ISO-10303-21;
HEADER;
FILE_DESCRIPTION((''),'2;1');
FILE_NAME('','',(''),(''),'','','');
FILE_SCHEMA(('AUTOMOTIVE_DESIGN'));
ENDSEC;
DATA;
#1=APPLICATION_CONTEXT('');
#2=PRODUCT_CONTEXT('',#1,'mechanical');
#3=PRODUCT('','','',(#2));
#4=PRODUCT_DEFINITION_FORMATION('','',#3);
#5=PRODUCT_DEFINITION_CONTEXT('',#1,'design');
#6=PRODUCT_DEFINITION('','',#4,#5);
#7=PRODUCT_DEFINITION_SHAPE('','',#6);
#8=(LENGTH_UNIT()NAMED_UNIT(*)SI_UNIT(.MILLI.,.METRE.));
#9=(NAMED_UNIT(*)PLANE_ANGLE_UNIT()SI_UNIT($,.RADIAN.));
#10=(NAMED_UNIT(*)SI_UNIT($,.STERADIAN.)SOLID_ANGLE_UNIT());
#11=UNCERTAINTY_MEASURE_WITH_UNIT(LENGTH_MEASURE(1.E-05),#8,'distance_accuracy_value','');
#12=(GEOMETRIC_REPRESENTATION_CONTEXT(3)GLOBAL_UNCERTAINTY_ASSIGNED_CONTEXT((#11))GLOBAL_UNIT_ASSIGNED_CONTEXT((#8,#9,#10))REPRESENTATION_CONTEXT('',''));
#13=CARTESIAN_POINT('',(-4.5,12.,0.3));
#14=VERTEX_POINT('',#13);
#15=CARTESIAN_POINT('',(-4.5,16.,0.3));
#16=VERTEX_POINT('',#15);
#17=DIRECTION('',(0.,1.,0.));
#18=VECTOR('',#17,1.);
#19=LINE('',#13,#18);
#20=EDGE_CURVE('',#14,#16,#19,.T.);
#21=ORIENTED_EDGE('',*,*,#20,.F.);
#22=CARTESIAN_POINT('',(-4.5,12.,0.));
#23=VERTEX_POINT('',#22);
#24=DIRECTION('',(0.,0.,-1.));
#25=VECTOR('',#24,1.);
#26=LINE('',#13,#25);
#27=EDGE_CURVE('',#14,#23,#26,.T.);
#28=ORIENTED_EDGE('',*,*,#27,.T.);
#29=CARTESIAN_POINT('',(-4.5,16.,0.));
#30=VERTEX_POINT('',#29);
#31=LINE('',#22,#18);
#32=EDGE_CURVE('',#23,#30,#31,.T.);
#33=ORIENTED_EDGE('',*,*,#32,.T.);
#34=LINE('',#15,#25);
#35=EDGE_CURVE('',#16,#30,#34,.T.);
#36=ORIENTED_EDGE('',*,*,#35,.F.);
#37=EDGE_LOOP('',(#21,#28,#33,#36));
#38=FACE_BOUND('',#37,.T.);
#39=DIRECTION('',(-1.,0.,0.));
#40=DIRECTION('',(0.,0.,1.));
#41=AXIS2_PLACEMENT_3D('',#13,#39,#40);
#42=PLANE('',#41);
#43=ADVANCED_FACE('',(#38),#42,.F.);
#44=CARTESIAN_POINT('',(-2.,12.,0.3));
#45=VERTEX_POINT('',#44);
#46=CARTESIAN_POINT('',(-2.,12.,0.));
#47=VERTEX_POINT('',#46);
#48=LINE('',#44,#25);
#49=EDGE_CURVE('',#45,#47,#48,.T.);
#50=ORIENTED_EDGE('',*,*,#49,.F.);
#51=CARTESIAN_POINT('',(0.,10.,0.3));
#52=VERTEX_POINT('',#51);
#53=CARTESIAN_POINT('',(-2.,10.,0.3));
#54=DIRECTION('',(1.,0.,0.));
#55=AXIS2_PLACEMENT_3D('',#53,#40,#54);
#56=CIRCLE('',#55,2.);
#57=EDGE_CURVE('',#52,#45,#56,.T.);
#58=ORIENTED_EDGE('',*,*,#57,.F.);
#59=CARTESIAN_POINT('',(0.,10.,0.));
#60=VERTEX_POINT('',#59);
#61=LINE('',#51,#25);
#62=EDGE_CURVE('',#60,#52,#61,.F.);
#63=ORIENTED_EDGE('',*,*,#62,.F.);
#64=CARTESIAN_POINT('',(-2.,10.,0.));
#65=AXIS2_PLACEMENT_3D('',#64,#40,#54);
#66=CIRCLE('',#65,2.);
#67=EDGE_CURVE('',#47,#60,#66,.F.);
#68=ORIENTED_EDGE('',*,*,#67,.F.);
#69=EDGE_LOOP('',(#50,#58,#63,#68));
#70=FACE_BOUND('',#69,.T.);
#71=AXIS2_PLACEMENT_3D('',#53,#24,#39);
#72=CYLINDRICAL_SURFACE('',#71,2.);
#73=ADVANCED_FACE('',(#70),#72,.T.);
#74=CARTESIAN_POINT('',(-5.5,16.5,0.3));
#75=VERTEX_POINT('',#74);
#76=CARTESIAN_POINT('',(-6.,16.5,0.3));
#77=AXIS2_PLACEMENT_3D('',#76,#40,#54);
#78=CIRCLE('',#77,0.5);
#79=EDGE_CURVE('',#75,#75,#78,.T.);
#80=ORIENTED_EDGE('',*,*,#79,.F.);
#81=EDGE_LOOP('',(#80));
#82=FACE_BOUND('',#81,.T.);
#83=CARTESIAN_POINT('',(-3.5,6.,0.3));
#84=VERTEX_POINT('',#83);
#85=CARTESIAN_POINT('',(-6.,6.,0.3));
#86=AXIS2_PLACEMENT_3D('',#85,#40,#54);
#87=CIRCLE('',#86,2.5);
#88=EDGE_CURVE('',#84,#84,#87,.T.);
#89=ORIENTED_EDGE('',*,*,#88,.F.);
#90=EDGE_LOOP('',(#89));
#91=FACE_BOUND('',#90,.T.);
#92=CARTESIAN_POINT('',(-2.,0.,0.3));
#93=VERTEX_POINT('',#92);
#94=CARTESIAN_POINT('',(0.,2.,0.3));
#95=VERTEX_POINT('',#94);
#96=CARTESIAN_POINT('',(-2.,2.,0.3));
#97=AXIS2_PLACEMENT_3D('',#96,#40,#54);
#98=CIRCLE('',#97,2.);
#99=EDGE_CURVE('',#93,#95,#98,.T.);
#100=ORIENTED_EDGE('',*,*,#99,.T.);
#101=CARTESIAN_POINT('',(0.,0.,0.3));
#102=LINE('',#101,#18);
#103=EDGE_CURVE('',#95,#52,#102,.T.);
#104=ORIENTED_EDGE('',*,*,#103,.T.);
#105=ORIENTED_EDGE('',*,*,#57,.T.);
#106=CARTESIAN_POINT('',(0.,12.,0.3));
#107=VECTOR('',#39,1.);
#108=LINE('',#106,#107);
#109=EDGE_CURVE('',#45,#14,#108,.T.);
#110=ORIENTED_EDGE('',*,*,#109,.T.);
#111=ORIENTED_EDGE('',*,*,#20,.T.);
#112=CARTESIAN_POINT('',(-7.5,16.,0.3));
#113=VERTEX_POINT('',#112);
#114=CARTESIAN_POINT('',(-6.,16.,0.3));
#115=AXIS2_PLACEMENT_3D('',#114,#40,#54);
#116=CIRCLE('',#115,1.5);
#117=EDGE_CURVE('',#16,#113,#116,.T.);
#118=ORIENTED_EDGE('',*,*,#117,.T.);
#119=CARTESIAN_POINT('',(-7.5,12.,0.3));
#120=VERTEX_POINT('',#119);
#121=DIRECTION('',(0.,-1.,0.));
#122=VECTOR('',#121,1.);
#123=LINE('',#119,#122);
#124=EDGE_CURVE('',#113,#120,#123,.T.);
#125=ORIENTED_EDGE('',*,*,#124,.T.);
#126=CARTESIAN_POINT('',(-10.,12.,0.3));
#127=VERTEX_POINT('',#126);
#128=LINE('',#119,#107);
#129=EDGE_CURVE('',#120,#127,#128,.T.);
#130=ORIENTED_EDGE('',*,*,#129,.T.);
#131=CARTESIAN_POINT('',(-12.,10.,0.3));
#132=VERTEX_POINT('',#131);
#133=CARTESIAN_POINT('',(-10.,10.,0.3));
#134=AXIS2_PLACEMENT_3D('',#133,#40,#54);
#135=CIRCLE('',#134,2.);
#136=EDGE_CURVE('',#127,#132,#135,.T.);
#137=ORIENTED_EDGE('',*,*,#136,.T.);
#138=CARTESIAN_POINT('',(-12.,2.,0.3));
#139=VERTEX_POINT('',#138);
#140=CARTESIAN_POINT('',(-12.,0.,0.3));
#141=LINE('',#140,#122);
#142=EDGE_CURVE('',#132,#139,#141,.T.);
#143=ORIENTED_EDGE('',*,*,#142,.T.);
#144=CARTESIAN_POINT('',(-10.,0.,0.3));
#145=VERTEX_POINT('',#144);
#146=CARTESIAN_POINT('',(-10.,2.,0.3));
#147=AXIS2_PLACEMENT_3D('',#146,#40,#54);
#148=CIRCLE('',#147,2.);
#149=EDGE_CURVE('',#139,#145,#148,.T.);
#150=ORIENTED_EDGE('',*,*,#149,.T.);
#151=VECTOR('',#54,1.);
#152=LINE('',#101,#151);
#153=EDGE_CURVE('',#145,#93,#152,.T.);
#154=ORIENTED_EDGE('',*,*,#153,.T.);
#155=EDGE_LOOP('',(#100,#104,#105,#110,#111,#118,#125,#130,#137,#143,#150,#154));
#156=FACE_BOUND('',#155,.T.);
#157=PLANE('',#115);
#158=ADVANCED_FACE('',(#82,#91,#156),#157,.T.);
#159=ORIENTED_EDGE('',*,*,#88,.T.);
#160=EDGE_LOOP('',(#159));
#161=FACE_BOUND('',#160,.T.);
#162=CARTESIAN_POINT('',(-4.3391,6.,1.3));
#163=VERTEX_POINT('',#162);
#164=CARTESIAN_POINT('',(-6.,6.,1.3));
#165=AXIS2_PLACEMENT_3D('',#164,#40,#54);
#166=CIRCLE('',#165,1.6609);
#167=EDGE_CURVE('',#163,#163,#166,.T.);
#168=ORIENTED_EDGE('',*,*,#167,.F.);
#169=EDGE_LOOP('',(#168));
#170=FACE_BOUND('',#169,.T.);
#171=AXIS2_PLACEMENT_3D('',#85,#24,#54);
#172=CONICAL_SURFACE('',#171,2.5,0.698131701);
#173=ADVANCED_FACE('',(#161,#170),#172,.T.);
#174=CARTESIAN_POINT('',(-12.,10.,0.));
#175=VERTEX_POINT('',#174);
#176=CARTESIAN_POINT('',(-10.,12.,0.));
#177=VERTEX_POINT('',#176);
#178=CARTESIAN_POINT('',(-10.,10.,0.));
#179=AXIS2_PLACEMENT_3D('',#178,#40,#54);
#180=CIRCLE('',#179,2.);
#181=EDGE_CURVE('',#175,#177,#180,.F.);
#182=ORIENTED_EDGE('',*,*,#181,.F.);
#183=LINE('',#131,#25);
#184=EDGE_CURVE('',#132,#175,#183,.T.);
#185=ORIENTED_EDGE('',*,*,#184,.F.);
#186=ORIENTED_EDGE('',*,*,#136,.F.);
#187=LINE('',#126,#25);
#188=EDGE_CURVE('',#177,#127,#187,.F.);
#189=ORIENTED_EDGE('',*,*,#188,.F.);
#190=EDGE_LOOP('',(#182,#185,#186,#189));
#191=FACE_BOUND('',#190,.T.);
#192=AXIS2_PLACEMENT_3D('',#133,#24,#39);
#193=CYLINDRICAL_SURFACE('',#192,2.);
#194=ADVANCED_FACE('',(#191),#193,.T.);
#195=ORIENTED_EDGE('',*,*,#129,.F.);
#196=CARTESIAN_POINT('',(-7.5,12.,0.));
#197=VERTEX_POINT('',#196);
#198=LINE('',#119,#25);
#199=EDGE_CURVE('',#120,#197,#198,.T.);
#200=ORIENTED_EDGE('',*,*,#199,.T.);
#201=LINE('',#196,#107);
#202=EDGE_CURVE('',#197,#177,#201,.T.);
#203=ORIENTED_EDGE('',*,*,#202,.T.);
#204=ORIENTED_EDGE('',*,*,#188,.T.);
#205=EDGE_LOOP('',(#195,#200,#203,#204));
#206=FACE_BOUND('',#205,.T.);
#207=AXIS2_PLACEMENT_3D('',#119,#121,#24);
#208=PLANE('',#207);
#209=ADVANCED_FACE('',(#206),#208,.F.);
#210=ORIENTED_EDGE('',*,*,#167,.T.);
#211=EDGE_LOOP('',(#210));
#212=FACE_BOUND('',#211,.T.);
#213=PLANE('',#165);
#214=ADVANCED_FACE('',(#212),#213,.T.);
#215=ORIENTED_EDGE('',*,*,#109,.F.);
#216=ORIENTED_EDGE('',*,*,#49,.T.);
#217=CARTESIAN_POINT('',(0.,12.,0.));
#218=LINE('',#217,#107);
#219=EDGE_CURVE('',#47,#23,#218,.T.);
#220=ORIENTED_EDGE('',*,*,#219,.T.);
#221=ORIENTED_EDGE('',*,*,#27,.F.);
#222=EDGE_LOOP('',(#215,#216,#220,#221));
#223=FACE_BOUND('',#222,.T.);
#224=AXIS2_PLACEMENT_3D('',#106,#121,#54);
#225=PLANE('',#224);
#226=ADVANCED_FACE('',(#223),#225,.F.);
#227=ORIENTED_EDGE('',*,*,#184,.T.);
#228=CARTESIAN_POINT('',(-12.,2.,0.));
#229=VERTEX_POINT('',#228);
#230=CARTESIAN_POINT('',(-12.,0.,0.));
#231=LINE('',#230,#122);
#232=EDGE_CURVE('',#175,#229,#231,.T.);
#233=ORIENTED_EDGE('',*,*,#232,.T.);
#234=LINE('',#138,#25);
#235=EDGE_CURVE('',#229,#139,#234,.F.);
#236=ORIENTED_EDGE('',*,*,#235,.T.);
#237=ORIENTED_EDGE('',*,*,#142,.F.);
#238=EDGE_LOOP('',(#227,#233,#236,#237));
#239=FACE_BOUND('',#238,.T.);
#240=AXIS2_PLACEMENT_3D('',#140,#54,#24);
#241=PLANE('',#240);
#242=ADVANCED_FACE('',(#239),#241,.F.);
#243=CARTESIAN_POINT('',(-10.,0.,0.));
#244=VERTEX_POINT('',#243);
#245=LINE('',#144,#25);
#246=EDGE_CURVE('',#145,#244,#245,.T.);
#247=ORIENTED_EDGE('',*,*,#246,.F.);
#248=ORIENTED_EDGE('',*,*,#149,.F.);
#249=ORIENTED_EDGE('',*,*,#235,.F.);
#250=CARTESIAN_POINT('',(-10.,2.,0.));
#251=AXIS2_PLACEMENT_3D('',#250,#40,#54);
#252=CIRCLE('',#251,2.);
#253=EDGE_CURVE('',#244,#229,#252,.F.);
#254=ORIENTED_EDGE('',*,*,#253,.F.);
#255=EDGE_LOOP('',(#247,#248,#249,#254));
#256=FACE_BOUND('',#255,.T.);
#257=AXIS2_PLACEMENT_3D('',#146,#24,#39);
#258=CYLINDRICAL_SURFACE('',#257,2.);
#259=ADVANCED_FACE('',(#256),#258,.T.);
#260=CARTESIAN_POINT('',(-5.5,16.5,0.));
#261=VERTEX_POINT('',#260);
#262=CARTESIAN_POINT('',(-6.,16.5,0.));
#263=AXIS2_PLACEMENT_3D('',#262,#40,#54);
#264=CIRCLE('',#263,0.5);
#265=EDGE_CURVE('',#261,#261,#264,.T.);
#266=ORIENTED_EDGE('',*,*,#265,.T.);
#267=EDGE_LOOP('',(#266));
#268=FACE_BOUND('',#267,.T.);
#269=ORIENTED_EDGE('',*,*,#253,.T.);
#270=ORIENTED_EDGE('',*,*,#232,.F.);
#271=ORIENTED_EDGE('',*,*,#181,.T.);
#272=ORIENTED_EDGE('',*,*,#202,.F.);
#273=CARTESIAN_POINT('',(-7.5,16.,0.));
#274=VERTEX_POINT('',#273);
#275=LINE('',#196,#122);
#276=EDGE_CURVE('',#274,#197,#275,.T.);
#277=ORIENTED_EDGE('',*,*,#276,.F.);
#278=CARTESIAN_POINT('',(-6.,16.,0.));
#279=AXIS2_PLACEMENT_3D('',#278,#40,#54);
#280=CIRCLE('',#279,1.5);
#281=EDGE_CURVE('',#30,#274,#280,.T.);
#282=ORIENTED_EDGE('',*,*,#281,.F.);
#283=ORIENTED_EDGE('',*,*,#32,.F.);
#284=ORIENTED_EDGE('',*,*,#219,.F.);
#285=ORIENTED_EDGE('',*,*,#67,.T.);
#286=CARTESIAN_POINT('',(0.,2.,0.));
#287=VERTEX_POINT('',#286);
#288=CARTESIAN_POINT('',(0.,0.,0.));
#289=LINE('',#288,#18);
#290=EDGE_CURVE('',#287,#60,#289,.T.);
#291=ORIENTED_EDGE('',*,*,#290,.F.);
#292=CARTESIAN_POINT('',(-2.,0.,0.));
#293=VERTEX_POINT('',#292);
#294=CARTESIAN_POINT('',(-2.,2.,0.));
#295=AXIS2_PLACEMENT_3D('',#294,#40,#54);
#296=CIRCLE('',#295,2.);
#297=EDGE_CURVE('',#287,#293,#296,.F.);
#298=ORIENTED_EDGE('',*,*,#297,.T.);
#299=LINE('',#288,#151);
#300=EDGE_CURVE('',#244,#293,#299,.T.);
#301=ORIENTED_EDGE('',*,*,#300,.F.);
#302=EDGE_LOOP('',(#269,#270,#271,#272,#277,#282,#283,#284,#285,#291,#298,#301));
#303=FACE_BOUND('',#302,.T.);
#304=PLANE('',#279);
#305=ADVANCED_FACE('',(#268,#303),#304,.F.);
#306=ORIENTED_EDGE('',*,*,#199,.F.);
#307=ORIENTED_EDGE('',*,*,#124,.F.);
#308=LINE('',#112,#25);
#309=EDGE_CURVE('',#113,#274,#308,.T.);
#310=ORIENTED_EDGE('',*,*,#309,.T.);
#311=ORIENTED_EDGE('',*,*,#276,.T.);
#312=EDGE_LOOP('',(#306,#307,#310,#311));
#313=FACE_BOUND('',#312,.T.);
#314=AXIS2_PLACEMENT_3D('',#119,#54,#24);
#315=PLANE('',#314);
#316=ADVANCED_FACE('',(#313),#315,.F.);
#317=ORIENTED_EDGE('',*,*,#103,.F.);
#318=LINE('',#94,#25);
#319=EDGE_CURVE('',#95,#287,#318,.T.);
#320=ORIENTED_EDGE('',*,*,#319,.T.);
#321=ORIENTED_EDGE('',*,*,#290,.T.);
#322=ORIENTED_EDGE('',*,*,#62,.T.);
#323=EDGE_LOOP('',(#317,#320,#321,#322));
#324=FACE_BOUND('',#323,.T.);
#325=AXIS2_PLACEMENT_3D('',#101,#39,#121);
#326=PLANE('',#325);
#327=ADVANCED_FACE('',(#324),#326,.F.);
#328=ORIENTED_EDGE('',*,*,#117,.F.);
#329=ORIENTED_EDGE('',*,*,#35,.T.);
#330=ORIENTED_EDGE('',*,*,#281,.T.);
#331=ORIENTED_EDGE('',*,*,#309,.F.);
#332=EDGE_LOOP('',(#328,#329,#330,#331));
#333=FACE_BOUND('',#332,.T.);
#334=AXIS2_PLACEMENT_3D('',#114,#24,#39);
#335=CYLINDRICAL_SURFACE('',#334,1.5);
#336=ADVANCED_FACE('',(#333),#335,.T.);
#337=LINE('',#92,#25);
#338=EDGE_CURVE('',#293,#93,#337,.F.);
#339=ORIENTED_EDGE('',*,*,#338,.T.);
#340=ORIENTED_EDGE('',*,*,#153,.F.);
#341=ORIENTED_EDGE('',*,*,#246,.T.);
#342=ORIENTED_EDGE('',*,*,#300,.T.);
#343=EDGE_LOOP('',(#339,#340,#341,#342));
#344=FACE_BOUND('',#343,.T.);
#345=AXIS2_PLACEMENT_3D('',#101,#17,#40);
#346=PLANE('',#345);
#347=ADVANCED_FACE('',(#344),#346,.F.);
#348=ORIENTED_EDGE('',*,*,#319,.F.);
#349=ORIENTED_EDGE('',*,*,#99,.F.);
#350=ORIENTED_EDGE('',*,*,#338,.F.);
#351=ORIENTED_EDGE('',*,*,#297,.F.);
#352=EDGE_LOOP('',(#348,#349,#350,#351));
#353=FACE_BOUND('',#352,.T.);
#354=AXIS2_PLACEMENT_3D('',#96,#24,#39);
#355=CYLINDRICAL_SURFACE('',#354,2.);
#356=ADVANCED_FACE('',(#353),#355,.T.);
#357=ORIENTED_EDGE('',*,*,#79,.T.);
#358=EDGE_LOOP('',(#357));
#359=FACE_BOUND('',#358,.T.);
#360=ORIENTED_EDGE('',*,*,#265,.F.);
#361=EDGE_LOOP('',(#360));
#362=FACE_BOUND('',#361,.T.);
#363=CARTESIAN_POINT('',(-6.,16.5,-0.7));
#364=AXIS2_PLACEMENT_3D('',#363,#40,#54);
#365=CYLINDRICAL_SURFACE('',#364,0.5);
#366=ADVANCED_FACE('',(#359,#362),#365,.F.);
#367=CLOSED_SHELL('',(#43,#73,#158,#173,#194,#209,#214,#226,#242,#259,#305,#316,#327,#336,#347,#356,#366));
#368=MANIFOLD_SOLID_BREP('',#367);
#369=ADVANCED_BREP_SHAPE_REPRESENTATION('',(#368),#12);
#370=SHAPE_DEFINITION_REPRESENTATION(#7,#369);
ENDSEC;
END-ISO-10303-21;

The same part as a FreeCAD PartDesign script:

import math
import FreeCAD as App
import Part
import Sketcher
from FreeCAD import Vector


def edges_at(feature, points):
    """Names of the edges that pass closest to the given points."""
    edges = feature.Shape.Edges
    near = lambda p: min(range(len(edges)), key=lambda i: edges[i].distToShape(Part.Vertex(*p))[0])
    return sorted({f"Edge{near(p) + 1}" for p in points})

doc = App.newDocument("Part")
params = doc.addObject("Spreadsheet::Sheet", "Params")
for row, (alias, value) in enumerate([
    ("sketch1_radius", "1.5 mm"),
    ("sketch1_width", "12 mm"),
    ("sketch1_height", "4 mm"),
    ("pad1_length", "0.3 mm"),
    ("fillet_radius", "2 mm"),
    ("sketch2_diameter", "5 mm"),
    ("pad2_length", "1 mm"),
    ("pad2_taper", "-40 deg"),
    ("sketch3_diameter", "1 mm"),
    ("pocket1_length", "1 mm"),
], start=1):
    params.set(f"A{row}", alias)
    params.set(f"B{row}", "=" + value)
    params.setAlias(f"B{row}", alias)

body = doc.addObject("PartDesign::Body", "Body")

# Sketch on XY plane
sketch1 = doc.addObject("Sketcher::SketchObject", "Sketch")
body.addObject(sketch1)
sketch1.AttachmentSupport = (doc.XY_Plane, [""])
sketch1.MapMode = "FlatFace"
sketch1.addGeometry([
    Part.LineSegment(Vector(-7.5, 12, 0), Vector(-12, 12, 0)),  # 0
    Part.LineSegment(Vector(-12, 12, 0), Vector(-12, 0, 0)),  # 1
    Part.LineSegment(Vector(-12, 0, 0), Vector(0, 0, 0)),  # 2
    Part.LineSegment(Vector(0, 0, 0), Vector(0, 12, 0)),  # 3
    Part.LineSegment(Vector(0, 12, 0), Vector(-4.5, 12, 0)),  # 4
    Part.LineSegment(Vector(-4.5, 12, 0), Vector(-4.5, 16, 0)),  # 5
    Part.ArcOfCircle(Part.Circle(Vector(-6, 16, 0), Vector(0, 0, 1), 1.5), math.radians(0), math.radians(180)),  # 6
    Part.LineSegment(Vector(-7.5, 16, 0), Vector(-7.5, 12, 0)),  # 7
], False)
sketch1.addConstraint([
    Sketcher.Constraint("Coincident", 0, 2, 1, 1),
    Sketcher.Constraint("Coincident", 1, 2, 2, 1),
    Sketcher.Constraint("Coincident", 2, 2, 3, 1),
    Sketcher.Constraint("Coincident", 3, 2, 4, 1),
    Sketcher.Constraint("Coincident", 4, 2, 5, 1),
    Sketcher.Constraint("Tangent", 5, 2, 6, 1),
    Sketcher.Constraint("Tangent", 6, 2, 7, 1),
    Sketcher.Constraint("Coincident", 7, 2, 0, 1),
    Sketcher.Constraint("Horizontal", 0),
    Sketcher.Constraint("Vertical", 1),
    Sketcher.Constraint("Horizontal", 2),
    Sketcher.Constraint("Vertical", 3),
    Sketcher.Constraint("Horizontal", 4),
    Sketcher.Constraint("Vertical", 5),
    Sketcher.Constraint("Vertical", 7),
    Sketcher.Constraint("Coincident", 2, 2, -1, 1),
    Sketcher.Constraint("Horizontal", 0, 2, 3, 2),
    Sketcher.Constraint("Equal", 0, 4),
    Sketcher.Constraint("Equal", 2, 1),
    Sketcher.Constraint("Radius", 6, 1.5),
    Sketcher.Constraint("DistanceX", 2, 1, 2, 2, 12.0),
    Sketcher.Constraint("DistanceY", 5, 1, 5, 2, 4.0),
])
sketch1.setExpression("Constraints[19]", "Params.sketch1_radius")
sketch1.setExpression("Constraints[20]", "Params.sketch1_width")
sketch1.setExpression("Constraints[21]", "Params.sketch1_height")
pad1 = doc.addObject("PartDesign::Pad", "Pad")
body.addObject(pad1)
pad1.Profile = sketch1
pad1.setExpression("Length", "Params.pad1_length")
doc.recompute()

fillet = doc.addObject("PartDesign::Fillet", "Fillet")
body.addObject(fillet)
fillet.Base = (pad1, edges_at(pad1, [
    (0, 0, 0.15),
    (-12, 0, 0.15),
    (-12, 12, 0.15),
    (0, 12, 0.15),
]))
fillet.setExpression("Radius", "Params.fillet_radius")

# Sketch on XY plane
sketch2 = doc.addObject("Sketcher::SketchObject", "Sketch001")
body.addObject(sketch2)
sketch2.AttachmentSupport = (doc.XY_Plane, [""])
sketch2.MapMode = "FlatFace"
sketch2.AttachmentOffset = App.Placement(Vector(0, 0, 0.3), App.Rotation())
sketch2.addGeometry(Part.Circle(Vector(-6, 6, 0), Vector(0, 0, 1), 2.5), False)
sketch2.addConstraint([
    Sketcher.Constraint("Diameter", 0, 5.0),
    Sketcher.Constraint("DistanceX", 0, 3, -1, 1, 6.0),
    Sketcher.Constraint("DistanceY", -1, 1, 0, 3, 6.0),
])
sketch2.setExpression("Constraints[0]", "Params.sketch2_diameter")
pad2 = doc.addObject("PartDesign::Pad", "Pad001")
body.addObject(pad2)
pad2.Profile = sketch2
pad2.setExpression("Length", "Params.pad2_length")
pad2.setExpression("TaperAngle", "Params.pad2_taper")

# Sketch on XY plane
sketch3 = doc.addObject("Sketcher::SketchObject", "Sketch002")
body.addObject(sketch3)
sketch3.AttachmentSupport = (doc.XY_Plane, [""])
sketch3.MapMode = "FlatFace"
sketch3.AttachmentOffset = App.Placement(Vector(0, 0, 0.3), App.Rotation())
sketch3.addGeometry(Part.Circle(Vector(-6, 16.5, 0), Vector(0, 0, 1), 0.5), False)
sketch3.addConstraint([
    Sketcher.Constraint("Diameter", 0, 1.0),
    Sketcher.Constraint("DistanceX", 0, 3, -1, 1, 6.0),
    Sketcher.Constraint("DistanceY", -1, 1, 0, 3, 16.5),
])
sketch3.setExpression("Constraints[0]", "Params.sketch3_diameter")
pocket1 = doc.addObject("PartDesign::Pocket", "Pocket")
body.addObject(pocket1)
pocket1.Profile = sketch3
pocket1.setExpression("Length", "Params.pocket1_length")

doc.recompute()
